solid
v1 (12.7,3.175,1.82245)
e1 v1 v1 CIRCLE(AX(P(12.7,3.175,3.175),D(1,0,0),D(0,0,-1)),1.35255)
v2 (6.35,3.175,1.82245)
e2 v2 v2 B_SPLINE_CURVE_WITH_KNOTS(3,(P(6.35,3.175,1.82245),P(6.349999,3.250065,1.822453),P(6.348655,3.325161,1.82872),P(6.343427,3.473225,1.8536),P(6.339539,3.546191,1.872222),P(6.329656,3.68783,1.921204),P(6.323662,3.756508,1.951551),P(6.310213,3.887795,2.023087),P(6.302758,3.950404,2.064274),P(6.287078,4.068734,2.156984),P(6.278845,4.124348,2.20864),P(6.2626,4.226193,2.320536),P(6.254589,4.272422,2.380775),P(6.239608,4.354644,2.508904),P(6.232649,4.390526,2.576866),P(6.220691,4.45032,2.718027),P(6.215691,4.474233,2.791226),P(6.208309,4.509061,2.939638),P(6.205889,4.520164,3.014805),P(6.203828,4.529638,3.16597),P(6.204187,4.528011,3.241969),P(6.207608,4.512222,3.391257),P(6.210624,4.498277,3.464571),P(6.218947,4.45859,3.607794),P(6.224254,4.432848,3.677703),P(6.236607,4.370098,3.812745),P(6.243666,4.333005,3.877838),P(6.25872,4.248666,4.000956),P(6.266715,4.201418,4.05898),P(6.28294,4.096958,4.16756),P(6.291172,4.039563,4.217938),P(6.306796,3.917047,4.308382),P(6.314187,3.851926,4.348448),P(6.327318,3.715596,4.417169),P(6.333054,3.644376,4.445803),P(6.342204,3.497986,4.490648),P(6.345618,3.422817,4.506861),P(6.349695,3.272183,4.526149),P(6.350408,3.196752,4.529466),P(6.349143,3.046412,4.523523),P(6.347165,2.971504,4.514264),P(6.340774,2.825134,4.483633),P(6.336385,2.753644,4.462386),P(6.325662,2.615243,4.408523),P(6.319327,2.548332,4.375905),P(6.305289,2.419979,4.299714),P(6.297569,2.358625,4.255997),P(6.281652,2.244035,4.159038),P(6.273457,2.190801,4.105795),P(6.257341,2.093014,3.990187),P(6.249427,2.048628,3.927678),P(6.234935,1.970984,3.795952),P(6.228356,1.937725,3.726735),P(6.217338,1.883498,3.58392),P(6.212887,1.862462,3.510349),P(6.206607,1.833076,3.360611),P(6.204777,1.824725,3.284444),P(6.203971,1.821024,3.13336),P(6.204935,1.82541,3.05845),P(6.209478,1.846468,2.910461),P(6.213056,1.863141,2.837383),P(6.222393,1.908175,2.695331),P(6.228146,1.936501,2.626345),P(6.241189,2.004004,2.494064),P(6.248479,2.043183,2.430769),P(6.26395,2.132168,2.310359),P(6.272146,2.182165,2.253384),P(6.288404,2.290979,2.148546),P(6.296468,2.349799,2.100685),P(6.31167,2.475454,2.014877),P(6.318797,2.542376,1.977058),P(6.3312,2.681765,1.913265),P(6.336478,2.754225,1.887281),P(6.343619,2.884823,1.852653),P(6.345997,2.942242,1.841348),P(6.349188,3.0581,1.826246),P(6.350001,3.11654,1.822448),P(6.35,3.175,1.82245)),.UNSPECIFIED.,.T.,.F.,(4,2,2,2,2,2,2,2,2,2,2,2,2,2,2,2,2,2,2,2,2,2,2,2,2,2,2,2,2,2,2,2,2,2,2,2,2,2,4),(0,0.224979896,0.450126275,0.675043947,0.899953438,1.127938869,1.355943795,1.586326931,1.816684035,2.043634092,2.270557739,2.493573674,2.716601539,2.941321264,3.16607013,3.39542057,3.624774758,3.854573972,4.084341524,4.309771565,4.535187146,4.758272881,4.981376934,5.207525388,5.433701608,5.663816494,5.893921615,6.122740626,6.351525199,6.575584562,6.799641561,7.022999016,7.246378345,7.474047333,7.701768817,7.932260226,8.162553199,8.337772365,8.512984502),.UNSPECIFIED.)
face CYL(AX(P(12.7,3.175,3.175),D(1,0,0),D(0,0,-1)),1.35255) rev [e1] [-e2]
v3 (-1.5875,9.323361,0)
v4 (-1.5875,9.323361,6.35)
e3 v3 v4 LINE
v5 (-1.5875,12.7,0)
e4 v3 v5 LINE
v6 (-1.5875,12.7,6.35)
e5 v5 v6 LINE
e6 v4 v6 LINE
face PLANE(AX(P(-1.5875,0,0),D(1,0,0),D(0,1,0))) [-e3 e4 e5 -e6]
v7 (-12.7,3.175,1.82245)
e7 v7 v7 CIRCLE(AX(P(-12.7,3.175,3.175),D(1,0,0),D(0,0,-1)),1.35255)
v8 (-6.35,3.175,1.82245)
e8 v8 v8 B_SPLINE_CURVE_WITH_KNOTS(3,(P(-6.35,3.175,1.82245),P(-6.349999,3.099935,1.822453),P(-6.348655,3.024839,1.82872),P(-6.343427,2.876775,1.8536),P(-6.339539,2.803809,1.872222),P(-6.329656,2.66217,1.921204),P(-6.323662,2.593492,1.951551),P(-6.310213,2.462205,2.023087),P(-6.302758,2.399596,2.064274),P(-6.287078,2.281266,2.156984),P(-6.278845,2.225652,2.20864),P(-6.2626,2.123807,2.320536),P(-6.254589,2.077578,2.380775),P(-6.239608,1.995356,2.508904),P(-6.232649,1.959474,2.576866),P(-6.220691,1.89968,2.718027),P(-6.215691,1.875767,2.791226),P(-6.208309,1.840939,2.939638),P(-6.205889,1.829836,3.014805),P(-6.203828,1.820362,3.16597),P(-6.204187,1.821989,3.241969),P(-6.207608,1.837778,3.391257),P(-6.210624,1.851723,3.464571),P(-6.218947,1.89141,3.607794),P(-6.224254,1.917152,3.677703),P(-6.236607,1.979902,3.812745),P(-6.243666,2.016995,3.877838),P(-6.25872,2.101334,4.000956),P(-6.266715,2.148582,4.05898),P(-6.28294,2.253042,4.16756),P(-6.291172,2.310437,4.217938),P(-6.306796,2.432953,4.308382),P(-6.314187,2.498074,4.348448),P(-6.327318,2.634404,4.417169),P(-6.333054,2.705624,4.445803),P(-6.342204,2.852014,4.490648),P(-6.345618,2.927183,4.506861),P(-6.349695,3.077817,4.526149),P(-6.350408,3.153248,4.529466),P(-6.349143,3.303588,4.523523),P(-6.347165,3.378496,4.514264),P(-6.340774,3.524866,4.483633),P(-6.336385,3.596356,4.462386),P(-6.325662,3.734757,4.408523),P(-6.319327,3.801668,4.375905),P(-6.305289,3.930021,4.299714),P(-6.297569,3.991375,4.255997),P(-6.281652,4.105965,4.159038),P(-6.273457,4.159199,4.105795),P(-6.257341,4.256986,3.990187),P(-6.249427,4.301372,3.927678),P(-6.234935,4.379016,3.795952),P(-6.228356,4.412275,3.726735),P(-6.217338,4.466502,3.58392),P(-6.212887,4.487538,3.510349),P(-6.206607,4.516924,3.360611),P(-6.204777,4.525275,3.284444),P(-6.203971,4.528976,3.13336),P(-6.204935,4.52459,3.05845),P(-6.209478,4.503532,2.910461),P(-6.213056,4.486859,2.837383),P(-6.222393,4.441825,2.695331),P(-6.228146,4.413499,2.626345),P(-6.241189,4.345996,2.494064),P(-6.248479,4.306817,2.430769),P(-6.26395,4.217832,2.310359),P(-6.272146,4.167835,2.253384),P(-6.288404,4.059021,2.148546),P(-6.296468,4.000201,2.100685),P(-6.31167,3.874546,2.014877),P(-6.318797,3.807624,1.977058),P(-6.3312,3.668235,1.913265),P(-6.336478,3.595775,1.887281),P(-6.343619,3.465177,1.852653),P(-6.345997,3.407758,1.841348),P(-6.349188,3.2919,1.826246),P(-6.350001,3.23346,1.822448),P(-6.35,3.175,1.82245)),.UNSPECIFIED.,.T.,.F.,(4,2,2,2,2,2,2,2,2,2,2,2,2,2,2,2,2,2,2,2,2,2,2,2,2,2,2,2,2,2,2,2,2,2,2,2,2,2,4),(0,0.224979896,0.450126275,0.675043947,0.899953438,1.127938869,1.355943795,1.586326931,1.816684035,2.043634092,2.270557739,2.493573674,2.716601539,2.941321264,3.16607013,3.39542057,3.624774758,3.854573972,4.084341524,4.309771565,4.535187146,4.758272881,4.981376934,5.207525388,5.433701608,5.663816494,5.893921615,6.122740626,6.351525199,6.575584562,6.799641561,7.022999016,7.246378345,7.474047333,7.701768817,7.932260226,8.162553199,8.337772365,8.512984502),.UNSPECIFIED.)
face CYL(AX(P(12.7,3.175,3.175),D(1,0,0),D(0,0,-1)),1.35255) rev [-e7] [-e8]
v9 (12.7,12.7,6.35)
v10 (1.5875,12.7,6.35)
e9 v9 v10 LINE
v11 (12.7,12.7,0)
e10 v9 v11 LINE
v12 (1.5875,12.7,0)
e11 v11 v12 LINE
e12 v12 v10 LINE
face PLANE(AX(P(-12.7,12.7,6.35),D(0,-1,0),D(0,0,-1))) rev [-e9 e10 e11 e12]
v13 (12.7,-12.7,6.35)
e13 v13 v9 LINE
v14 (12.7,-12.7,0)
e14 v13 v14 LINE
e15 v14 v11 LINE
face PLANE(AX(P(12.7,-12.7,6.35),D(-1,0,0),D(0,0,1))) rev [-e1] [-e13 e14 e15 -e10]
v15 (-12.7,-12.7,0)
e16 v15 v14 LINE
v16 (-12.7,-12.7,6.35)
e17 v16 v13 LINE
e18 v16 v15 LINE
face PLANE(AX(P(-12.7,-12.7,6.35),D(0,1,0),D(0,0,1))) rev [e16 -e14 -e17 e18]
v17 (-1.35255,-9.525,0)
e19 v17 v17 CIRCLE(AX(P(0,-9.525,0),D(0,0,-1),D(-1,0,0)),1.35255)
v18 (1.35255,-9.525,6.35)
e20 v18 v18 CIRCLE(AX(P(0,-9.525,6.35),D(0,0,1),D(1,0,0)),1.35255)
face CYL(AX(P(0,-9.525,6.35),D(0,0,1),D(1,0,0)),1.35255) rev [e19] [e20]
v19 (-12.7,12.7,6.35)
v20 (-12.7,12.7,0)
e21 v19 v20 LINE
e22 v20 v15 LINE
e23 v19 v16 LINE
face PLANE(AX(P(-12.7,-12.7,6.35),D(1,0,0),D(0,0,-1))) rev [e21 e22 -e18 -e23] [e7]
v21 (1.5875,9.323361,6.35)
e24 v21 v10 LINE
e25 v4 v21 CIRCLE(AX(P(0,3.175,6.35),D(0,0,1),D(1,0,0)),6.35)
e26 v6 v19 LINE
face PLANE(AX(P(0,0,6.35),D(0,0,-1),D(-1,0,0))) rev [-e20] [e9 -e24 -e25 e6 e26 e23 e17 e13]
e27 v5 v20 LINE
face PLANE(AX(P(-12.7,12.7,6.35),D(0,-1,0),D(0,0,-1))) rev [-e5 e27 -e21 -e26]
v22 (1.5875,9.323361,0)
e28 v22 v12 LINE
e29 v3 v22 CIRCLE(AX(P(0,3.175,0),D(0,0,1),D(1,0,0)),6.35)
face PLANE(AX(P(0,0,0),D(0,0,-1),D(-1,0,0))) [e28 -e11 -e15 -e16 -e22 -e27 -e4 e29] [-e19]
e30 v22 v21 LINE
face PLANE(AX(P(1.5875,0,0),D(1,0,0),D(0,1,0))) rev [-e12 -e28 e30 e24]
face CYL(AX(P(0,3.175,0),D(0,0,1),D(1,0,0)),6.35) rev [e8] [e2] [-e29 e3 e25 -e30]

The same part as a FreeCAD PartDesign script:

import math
import FreeCAD as App
import Part
import Sketcher

V = App.Vector
Q = App.Units.Quantity

doc = App.newDocument("Part")
params = doc.addObject("Spreadsheet::Sheet", "Params")
for row, (alias, value) in enumerate([
    ("sketch1_width", "1 in"),
    ("pad1_length", "0.25 in"),
    ("sketch2_radius", "0.25 in"),
    ("sketch2_width", "0.125 in"),
    ("hole_diameter", "0.1065 in"),
    ("hole2_diameter", "0.1065 in"),
], start=1):
    params.set(f"A{row}", alias)
    params.set(f"B{row}", "=" + value)
    params.setAlias(f"B{row}", alias)

body = doc.addObject("PartDesign::Body", "Body")

sketch1 = body.newObject("Sketcher::SketchObject", "Sketch")
sketch1.AttachmentSupport = (doc.getObject("XY_Plane"), [""])
sketch1.MapMode = "FlatFace"
sketch1.addGeometry(Part.LineSegment(V(-12.7, 12.7, 0), V(-12.7, -12.7, 0)), False)
sketch1.addGeometry(Part.LineSegment(V(-12.7, -12.7, 0), V(12.7, -12.7, 0)), False)
sketch1.addGeometry(Part.LineSegment(V(12.7, -12.7, 0), V(12.7, 12.7, 0)), False)
sketch1.addGeometry(Part.LineSegment(V(12.7, 12.7, 0), V(-12.7, 12.7, 0)), False)
sketch1.addConstraint(Sketcher.Constraint("Coincident", 0, 2, 1, 1))
sketch1.addConstraint(Sketcher.Constraint("Coincident", 1, 2, 2, 1))
sketch1.addConstraint(Sketcher.Constraint("Coincident", 2, 2, 3, 1))
sketch1.addConstraint(Sketcher.Constraint("Coincident", 3, 2, 0, 1))
sketch1.addConstraint(Sketcher.Constraint("Vertical", 0))
sketch1.addConstraint(Sketcher.Constraint("Horizontal", 1))
sketch1.addConstraint(Sketcher.Constraint("Vertical", 2))
sketch1.addConstraint(Sketcher.Constraint("Horizontal", 3))
sketch1.addConstraint(Sketcher.Constraint("Symmetric", 0, 2, 2, 2, -1, 1))
sketch1.addConstraint(Sketcher.Constraint("Equal", 3, 0))
sketch1.addConstraint(Sketcher.Constraint("DistanceX", 1, 1, 1, 2, Q("1 in")))
sketch1.setExpression("Constraints[10]", "Params.sketch1_width")
pad1 = body.newObject("PartDesign::Pad", "Pad")
pad1.Profile = sketch1
pad1.setExpression("Length", "Params.pad1_length")

sketch2 = body.newObject("Sketcher::SketchObject", "Sketch001")
sketch2.AttachmentSupport = (doc.getObject("XY_Plane"), [""])
sketch2.MapMode = "FlatFace"
sketch2.AttachmentOffset = App.Placement(V(0, 0, 0.25 * 25.4), App.Rotation())
sketch2.addGeometry(Part.ArcOfCircle(Part.Circle(V(0, 3.175, 0), V(0, 0, 1), 6.35), math.radians(104.477512), math.radians(360)), False)
sketch2.addGeometry(Part.ArcOfCircle(Part.Circle(V(0, 3.175, 0), V(0, 0, 1), 6.35), math.radians(0), math.radians(75.522488)), False)
sketch2.addGeometry(Part.LineSegment(V(1.5875, 9.323361, 0), V(1.5875, 12.7, 0)), False)
sketch2.addGeometry(Part.LineSegment(V(1.5875, 12.7, 0), V(-1.5875, 12.7, 0)), False)
sketch2.addGeometry(Part.LineSegment(V(-1.5875, 12.7, 0), V(-1.5875, 9.323361, 0)), False)
sketch2.addConstraint(Sketcher.Constraint("Tangent", 0, 2, 1, 1))
sketch2.addConstraint(Sketcher.Constraint("Coincident", 1, 2, 2, 1))
sketch2.addConstraint(Sketcher.Constraint("Coincident", 2, 2, 3, 1))
sketch2.addConstraint(Sketcher.Constraint("Coincident", 3, 2, 4, 1))
sketch2.addConstraint(Sketcher.Constraint("Coincident", 4, 2, 0, 1))
sketch2.addConstraint(Sketcher.Constraint("Vertical", 2))
sketch2.addConstraint(Sketcher.Constraint("Horizontal", 3))
sketch2.addConstraint(Sketcher.Constraint("Vertical", 4))
sketch2.addConstraint(Sketcher.Constraint("Equal", 0, 1))
sketch2.addConstraint(Sketcher.Constraint("Symmetric", 1, 2, 4, 2, -2))
sketch2.addConstraint(Sketcher.Constraint("Horizontal", 1, 3, 0, 2))
sketch2.addConstraint(Sketcher.Constraint("Radius", 0, Q("0.25 in")))
sketch2.addConstraint(Sketcher.Constraint("DistanceY", -1, 1, 2, 2, Q("0.5 in")))
sketch2.addConstraint(Sketcher.Constraint("DistanceX", 3, 2, 3, 1, Q("0.125 in")))
sketch2.addConstraint(Sketcher.Constraint("DistanceY", -1, 1, 0, 3, Q("0.125 in")))
sketch2.setExpression("Constraints[11]", "Params.sketch2_radius")
sketch2.setExpression("Constraints[13]", "Params.sketch2_width")
pocket1 = body.newObject("PartDesign::Pocket", "Pocket")
pocket1.Profile = sketch2
pocket1.Type = "ThroughAll"

sketch3 = body.newObject("Sketcher::SketchObject", "Sketch002")
sketch3.AttachmentSupport = (doc.getObject("YZ_Plane"), [""])
sketch3.MapMode = "FlatFace"
sketch3.AttachmentOffset = App.Placement(V(0, 0, 0.5 * 25.4), App.Rotation())
sketch3.addGeometry(Part.Circle(V(3.175, 3.175, 0), V(0, 0, 1), 1.35255), False)
sketch3.addConstraint(Sketcher.Constraint("Diameter", 0, Q("0.1065 in")))
sketch3.addConstraint(Sketcher.Constraint("DistanceX", -1, 1, 0, 3, Q("0.125 in")))
sketch3.addConstraint(Sketcher.Constraint("DistanceY", -1, 1, 0, 3, Q("0.125 in")))
doc.recompute()
hole = body.newObject("PartDesign::Hole", "Hole")
hole.Profile = sketch3
hole.ThreadType = "None"
hole.setExpression("Diameter", "Params.hole_diameter")
hole.DepthType = "ThroughAll"

sketch4 = body.newObject("Sketcher::SketchObject", "Sketch003")
sketch4.AttachmentSupport = (doc.getObject("XY_Plane"), [""])
sketch4.MapMode = "FlatFace"
sketch4.AttachmentOffset = App.Placement(V(0, 0, 0.25 * 25.4), App.Rotation())
sketch4.addGeometry(Part.Circle(V(0, -9.525, 0), V(0, 0, 1), 1.35255), False)
sketch4.addConstraint(Sketcher.Constraint("PointOnObject", 0, 3, -2))
sketch4.addConstraint(Sketcher.Constraint("Diameter", 0, Q("0.1065 in")))
sketch4.addConstraint(Sketcher.Constraint("DistanceY", 0, 3, -1, 1, Q("0.375 in")))
doc.recompute()
hole2 = body.newObject("PartDesign::Hole", "Hole001")
hole2.Profile = sketch4
hole2.ThreadType = "None"
hole2.setExpression("Diameter", "Params.hole2_diameter")
hole2.DepthType = "ThroughAll"

doc.recompute()
